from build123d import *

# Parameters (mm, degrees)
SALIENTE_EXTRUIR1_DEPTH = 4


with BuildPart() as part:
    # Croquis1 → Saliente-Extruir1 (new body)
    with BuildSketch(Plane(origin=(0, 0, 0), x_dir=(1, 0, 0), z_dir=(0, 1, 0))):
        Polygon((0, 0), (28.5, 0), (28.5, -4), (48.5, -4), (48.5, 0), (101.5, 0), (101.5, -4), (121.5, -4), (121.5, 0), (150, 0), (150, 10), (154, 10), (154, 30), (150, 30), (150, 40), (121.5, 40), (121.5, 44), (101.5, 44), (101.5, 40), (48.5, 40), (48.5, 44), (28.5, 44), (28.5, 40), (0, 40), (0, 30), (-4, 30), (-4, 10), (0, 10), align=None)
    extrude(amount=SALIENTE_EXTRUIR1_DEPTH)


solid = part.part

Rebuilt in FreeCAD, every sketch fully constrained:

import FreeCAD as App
import Part
import Sketcher

V = App.Vector


def add_polygon(sketch, points):
    """Adds a closed chain of lines whose ends are joined by coincident constraints."""
    first, n = sketch.GeometryCount, len(points)
    for a, b in zip(points, points[1:] + points[:1]):
        sketch.addGeometry(Part.LineSegment(App.Vector(*a, 0), App.Vector(*b, 0)), False)
    for i in range(n):
        sketch.addConstraint(Sketcher.Constraint("Coincident", first + i, 2, first + (i + 1) % n, 1))

doc = App.newDocument("Part")
params = doc.addObject("Spreadsheet::Sheet", "Params")
for row, (alias, value) in enumerate([
    ("sketch1_width", "20 mm"),
    ("sketch1_width2", "53 mm"),
    ("sketch1_width3", "4 mm"),
    ("sketch1_height", "10 mm"),
    ("sketch1_width4", "28.5 mm"),
    ("pad1_length", "4 mm"),
], start=1):
    params.set(f"A{row}", alias)
    params.set(f"B{row}", "=" + value)
    params.setAlias(f"B{row}", alias)

body = doc.addObject("PartDesign::Body", "Body")

sketch1 = body.newObject("Sketcher::SketchObject", "Sketch")
sketch1.AttachmentSupport = (doc.getObject("XZ_Plane"), [""])
sketch1.MapMode = "FlatFace"
add_polygon(sketch1, [(0, 0), (28.5, 0), (28.5, 4), (48.5, 4), (48.5, 0), (101.5, 0), (101.5, 4), (121.5, 4), (121.5, 0), (150, 0), (150, -10), (154, -10), (154, -30), (150, -30), (150, -40), (121.5, -40), (121.5, -44), (101.5, -44), (101.5, -40), (48.5, -40), (48.5, -44), (28.5, -44), (28.5, -40), (0, -40), (0, -30), (-4, -30), (-4, -10), (0, -10)])
sketch1.addConstraint(Sketcher.Constraint("Horizontal", 0))
sketch1.addConstraint(Sketcher.Constraint("Vertical", 1))
sketch1.addConstraint(Sketcher.Constraint("Horizontal", 2))
sketch1.addConstraint(Sketcher.Constraint("Vertical", 3))
sketch1.addConstraint(Sketcher.Constraint("Horizontal", 4))
sketch1.addConstraint(Sketcher.Constraint("Vertical", 5))
sketch1.addConstraint(Sketcher.Constraint("Horizontal", 6))
sketch1.addConstraint(Sketcher.Constraint("Vertical", 7))
sketch1.addConstraint(Sketcher.Constraint("Horizontal", 8))
sketch1.addConstraint(Sketcher.Constraint("Vertical", 9))
sketch1.addConstraint(Sketcher.Constraint("Horizontal", 10))
sketch1.addConstraint(Sketcher.Constraint("Vertical", 11))
sketch1.addConstraint(Sketcher.Constraint("Horizontal", 12))
sketch1.addConstraint(Sketcher.Constraint("Vertical", 13))
sketch1.addConstraint(Sketcher.Constraint("Horizontal", 14))
sketch1.addConstraint(Sketcher.Constraint("Vertical", 15))
sketch1.addConstraint(Sketcher.Constraint("Horizontal", 16))
sketch1.addConstraint(Sketcher.Constraint("Vertical", 17))
sketch1.addConstraint(Sketcher.Constraint("Horizontal", 18))
sketch1.addConstraint(Sketcher.Constraint("Vertical", 19))
sketch1.addConstraint(Sketcher.Constraint("Horizontal", 20))
sketch1.addConstraint(Sketcher.Constraint("Vertical", 21))
sketch1.addConstraint(Sketcher.Constraint("Horizontal", 22))
sketch1.addConstraint(Sketcher.Constraint("Vertical", 23))
sketch1.addConstraint(Sketcher.Constraint("Horizontal", 24))
sketch1.addConstraint(Sketcher.Constraint("Vertical", 25))
sketch1.addConstraint(Sketcher.Constraint("Horizontal", 26))
sketch1.addConstraint(Sketcher.Constraint("Vertical", 27))
sketch1.addConstraint(Sketcher.Constraint("Coincident", 27, 2, -1, 1))
sketch1.addConstraint(Sketcher.Constraint("PointOnObject", 3, 2, -1))
sketch1.addConstraint(Sketcher.Constraint("PointOnObject", 7, 2, -1))
sketch1.addConstraint(Sketcher.Constraint("PointOnObject", 22, 2, -2))
sketch1.addConstraint(Sketcher.Constraint("Horizontal", 2, 2, 5, 2))
sketch1.addConstraint(Sketcher.Constraint("Horizontal", 14, 2, 17, 2))
sketch1.addConstraint(Sketcher.Constraint("Horizontal", 16, 2, 19, 2))
sketch1.addConstraint(Sketcher.Constraint("Horizontal", 18, 2, 21, 2))
sketch1.addConstraint(Sketcher.Constraint("Horizontal", 12, 2, 23, 2))
sketch1.addConstraint(Sketcher.Constraint("Horizontal", 10, 2, 25, 2))
sketch1.addConstraint(Sketcher.Constraint("Vertical", 9, 2, 12, 2))
sketch1.addConstraint(Sketcher.Constraint("Vertical", 7, 2, 14, 2))
sketch1.addConstraint(Sketcher.Constraint("Vertical", 5, 2, 16, 2))
sketch1.addConstraint(Sketcher.Constraint("Vertical", 3, 2, 18, 2))
sketch1.addConstraint(Sketcher.Constraint("Vertical", 1, 2, 20, 2))
sketch1.addConstraint(Sketcher.Constraint("Equal", 2, 6))
sketch1.addConstraint(Sketcher.Constraint("Equal", 0, 8))
sketch1.addConstraint(Sketcher.Constraint("Equal", 12, 24))
sketch1.addConstraint(Sketcher.Constraint("Equal", 26, 1))
sketch1.addConstraint(Sketcher.Constraint("Equal", 20, 11))
sketch1.addConstraint(Sketcher.Constraint("Equal", 9, 13))
sketch1.addConstraint(Sketcher.Constraint("Equal", 7, 15))
sketch1.addConstraint(Sketcher.Constraint("DistanceX", 2, 1, 2, 2, 20.0))
sketch1.addConstraint(Sketcher.Constraint("DistanceX", 4, 1, 4, 2, 53.0))
sketch1.addConstraint(Sketcher.Constraint("DistanceX", 10, 1, 10, 2, 4.0))
sketch1.addConstraint(Sketcher.Constraint("DistanceY", 9, 2, 9, 1, 10.0))
sketch1.addConstraint(Sketcher.Constraint("DistanceX", 0, 1, 0, 2, 28.5))
sketch1.setExpression("Constraints[78]", "Params.sketch1_width")
sketch1.setExpression("Constraints[79]", "Params.sketch1_width2")
sketch1.setExpression("Constraints[80]", "Params.sketch1_width3")
sketch1.setExpression("Constraints[81]", "Params.sketch1_height")
sketch1.setExpression("Constraints[82]", "Params.sketch1_width4")
pad1 = body.newObject("PartDesign::Pad", "Pad")
pad1.Profile = sketch1
pad1.setExpression("Length", "Params.pad1_length")
pad1.Reversed = True

doc.recompute()
